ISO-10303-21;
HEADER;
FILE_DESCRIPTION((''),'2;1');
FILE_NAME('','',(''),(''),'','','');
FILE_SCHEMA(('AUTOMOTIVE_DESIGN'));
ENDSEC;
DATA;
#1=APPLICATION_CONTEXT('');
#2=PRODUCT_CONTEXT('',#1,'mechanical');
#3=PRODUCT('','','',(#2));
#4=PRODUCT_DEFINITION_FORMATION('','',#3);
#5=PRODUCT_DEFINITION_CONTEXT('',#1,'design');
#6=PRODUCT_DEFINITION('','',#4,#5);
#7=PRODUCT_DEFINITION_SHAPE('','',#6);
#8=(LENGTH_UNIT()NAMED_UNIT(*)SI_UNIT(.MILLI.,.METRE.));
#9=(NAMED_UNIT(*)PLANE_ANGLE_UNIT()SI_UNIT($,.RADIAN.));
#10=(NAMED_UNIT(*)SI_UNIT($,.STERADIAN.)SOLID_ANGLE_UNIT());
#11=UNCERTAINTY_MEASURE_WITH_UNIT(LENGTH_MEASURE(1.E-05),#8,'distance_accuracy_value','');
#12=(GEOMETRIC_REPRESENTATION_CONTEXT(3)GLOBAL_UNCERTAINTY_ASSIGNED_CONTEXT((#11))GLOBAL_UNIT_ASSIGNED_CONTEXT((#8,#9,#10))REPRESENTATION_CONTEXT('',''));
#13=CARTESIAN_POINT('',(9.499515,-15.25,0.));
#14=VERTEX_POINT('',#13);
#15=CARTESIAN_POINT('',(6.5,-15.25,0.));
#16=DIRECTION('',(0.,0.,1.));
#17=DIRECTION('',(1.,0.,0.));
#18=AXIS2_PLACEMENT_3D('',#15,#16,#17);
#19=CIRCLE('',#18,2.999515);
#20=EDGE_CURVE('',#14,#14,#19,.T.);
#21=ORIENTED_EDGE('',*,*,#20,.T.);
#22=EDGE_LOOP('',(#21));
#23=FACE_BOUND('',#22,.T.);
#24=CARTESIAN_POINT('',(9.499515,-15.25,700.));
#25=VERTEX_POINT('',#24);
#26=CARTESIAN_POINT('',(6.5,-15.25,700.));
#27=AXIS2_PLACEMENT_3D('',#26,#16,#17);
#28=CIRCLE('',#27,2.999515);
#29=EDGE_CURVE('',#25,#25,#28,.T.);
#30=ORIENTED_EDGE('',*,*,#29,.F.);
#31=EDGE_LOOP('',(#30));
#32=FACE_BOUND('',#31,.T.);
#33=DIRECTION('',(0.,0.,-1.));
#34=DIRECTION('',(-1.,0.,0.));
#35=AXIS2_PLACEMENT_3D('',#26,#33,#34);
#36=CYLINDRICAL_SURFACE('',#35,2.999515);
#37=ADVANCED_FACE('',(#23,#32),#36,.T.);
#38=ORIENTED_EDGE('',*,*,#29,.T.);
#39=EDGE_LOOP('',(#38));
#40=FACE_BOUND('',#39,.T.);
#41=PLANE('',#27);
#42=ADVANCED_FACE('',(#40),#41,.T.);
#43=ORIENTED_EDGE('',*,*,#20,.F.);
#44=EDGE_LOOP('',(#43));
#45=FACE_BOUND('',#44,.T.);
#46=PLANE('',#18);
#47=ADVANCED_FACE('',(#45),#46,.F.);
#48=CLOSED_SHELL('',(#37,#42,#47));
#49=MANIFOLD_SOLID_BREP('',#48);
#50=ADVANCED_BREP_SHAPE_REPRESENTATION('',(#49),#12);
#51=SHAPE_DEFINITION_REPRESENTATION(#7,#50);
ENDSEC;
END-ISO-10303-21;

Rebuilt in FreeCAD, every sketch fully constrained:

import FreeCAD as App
import Part
import Sketcher

V = App.Vector

doc = App.newDocument("Part")
params = doc.addObject("Spreadsheet::Sheet", "Params")
for row, (alias, value) in enumerate([
    ("pad1_length", "700 mm"),
], start=1):
    params.set(f"A{row}", alias)
    params.set(f"B{row}", "=" + value)
    params.setAlias(f"B{row}", alias)

body = doc.addObject("PartDesign::Body", "Body")

# Sketch on XY plane
sketch1 = body.newObject("Sketcher::SketchObject", "Sketch")
sketch1.AttachmentSupport = (doc.getObject("XY_Plane"), [""])
sketch1.MapMode = "FlatFace"
sketch1.addGeometry(Part.Circle(V(6.5, -15.25, 0), V(0, 0, 1), 2.999515), False)
sketch1.addConstraint(Sketcher.Constraint("DistanceX", -1, 1, 0, 3, 6.5))
sketch1.addConstraint(Sketcher.Constraint("Diameter", 0, 5.999031))
sketch1.addConstraint(Sketcher.Constraint("DistanceY", 0, 3, -1, 1, 15.25))
pad1 = body.newObject("PartDesign::Pad", "Pad")
pad1.Profile = sketch1
pad1.setExpression("Length", "Params.pad1_length")

doc.recompute()
